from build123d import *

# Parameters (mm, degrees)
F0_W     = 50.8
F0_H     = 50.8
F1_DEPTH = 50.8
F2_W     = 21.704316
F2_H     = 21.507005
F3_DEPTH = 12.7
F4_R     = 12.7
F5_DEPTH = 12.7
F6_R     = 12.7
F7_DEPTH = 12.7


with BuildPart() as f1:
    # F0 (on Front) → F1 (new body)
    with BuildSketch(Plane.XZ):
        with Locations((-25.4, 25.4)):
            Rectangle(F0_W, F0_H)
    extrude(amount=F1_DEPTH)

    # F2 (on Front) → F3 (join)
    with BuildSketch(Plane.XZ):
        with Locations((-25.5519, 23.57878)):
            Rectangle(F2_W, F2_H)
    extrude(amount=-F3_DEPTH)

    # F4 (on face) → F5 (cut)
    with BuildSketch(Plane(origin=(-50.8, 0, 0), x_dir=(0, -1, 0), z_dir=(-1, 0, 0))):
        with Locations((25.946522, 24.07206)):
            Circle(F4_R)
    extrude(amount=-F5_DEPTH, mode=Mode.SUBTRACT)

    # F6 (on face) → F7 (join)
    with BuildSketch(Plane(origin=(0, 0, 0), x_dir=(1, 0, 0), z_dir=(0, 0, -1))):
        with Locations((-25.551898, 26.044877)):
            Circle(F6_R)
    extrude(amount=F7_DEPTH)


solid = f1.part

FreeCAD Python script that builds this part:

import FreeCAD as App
import Part
import Sketcher
Q = App.Units.Quantity


def add_polygon(sketch, points):
    """Adds a closed chain of lines whose ends are joined by coincident constraints."""
    first, n = sketch.GeometryCount, len(points)
    for a, b in zip(points, points[1:] + points[:1]):
        sketch.addGeometry(Part.LineSegment(App.Vector(*a, 0), App.Vector(*b, 0)), False)
    for i in range(n):
        sketch.addConstraint(Sketcher.Constraint("Coincident", first + i, 2, first + (i + 1) % n, 1))

doc = App.newDocument("Part")
body = doc.addObject("PartDesign::Body", "Body")

# Sketch on XZ plane
sketch1 = body.newObject("Sketcher::SketchObject", "Sketch")
sketch1.AttachmentSupport = (doc.getObject("XZ_Plane"), [""])
sketch1.MapMode = "FlatFace"
add_polygon(sketch1, [(-50.8, 50.8), (-50.8, 0), (0, 0), (0, 50.8)])  # lines 0-3
sketch1.addConstraint([
    Sketcher.Constraint("Vertical", 0),
    Sketcher.Constraint("Horizontal", 1),
    Sketcher.Constraint("Vertical", 2),
    Sketcher.Constraint("Horizontal", 3),
    Sketcher.Constraint("Coincident", 1, 2, -1, 1),
    Sketcher.Constraint("Equal", 3, 0),
    Sketcher.Constraint("DistanceX", 1, 1, 1, 2, Q("2 in")),
])
pad1 = body.newObject("PartDesign::Pad", "Pad")
pad1.Profile = sketch1
pad1.Length = Q("2 in")

# Sketch on XZ plane
sketch2 = body.newObject("Sketcher::SketchObject", "Sketch001")
sketch2.AttachmentSupport = (doc.getObject("XZ_Plane"), [""])
sketch2.MapMode = "FlatFace"
add_polygon(sketch2, [(-36.404058, 34.332282), (-36.404058, 12.825278), (-14.699742, 12.825278), (-14.699742, 34.332282)])  # lines 0-3
sketch2.addConstraint([
    Sketcher.Constraint("Vertical", 0),
    Sketcher.Constraint("Horizontal", 1),
    Sketcher.Constraint("Vertical", 2),
    Sketcher.Constraint("Horizontal", 3),
    Sketcher.Constraint("DistanceX", 1, 1, 1, 2, Q("21.704316 mm")),
    Sketcher.Constraint("DistanceY", 0, 2, 0, 1, Q("21.507005 mm")),
    Sketcher.Constraint("DistanceX", 0, 2, -1, 1, Q("36.404058 mm")),
    Sketcher.Constraint("DistanceY", -1, 1, 0, 2, Q("12.825278 mm")),
])
pad2 = body.newObject("PartDesign::Pad", "Pad001")
pad2.Profile = sketch2
pad2.Length = Q("0.5 in")
pad2.Reversed = True

# Sketch on YZ plane
sketch3 = body.newObject("Sketcher::SketchObject", "Sketch002")
sketch3.AttachmentSupport = (doc.getObject("YZ_Plane"), [""])
sketch3.MapMode = "FlatFace"
sketch3.AttachmentOffset = App.Placement(App.Vector(0, 0, -2 * 25.4), App.Rotation())
sketch3.addGeometry(Part.Circle(App.Vector(-25.946522, 24.07206, 0), App.Vector(0, 0, 1), 12.7), False)
sketch3.addConstraint([
    Sketcher.Constraint("Diameter", 0, Q("1 in")),
    Sketcher.Constraint("DistanceY", -1, 1, 0, 3, Q("24.07206 mm")),
    Sketcher.Constraint("DistanceX", 0, 3, -1, 1, Q("25.946522 mm")),
])
pocket1 = body.newObject("PartDesign::Pocket", "Pocket")
pocket1.Profile = sketch3
pocket1.Length = Q("0.5 in")
pocket1.Reversed = True

# Sketch on XY plane
sketch4 = body.newObject("Sketcher::SketchObject", "Sketch003")
sketch4.AttachmentSupport = (doc.getObject("XY_Plane"), [""])
sketch4.MapMode = "FlatFace"
sketch4.addGeometry(Part.Circle(App.Vector(-25.551898, -26.044877, 0), App.Vector(0, 0, 1), 12.7), False)
sketch4.addConstraint([
    Sketcher.Constraint("Diameter", 0, Q("1 in")),
    Sketcher.Constraint("DistanceX", 0, 3, -1, 1, Q("25.551898 mm")),
    Sketcher.Constraint("DistanceY", 0, 3, -1, 1, Q("26.044877 mm")),
])
pad3 = body.newObject("PartDesign::Pad", "Pad002")
pad3.Profile = sketch4
pad3.Length = Q("0.5 in")
pad3.Reversed = True

doc.recompute()
